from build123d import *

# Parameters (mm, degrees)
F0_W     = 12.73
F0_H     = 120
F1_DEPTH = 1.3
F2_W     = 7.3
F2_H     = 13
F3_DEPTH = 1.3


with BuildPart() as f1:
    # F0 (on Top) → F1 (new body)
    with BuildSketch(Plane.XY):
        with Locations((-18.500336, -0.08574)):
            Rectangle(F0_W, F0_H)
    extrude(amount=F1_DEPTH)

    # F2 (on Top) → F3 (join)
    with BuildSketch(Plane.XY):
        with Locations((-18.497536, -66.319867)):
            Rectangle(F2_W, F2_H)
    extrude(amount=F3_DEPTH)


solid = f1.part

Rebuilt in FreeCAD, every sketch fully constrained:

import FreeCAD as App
import Part
import Sketcher

doc = App.newDocument("Part")
body = doc.addObject("PartDesign::Body", "Body")

# Sketch on XY plane
sketch1 = doc.addObject("Sketcher::SketchObject", "Sketch")
body.addObject(sketch1)
sketch1.AttachmentSupport = (doc.XY_Plane, [""])
sketch1.MapMode = "FlatFace"
sketch1.addGeometry([
    Part.LineSegment(App.Vector(-25, 60, 0), App.Vector(-25, -60, 0)),
    Part.LineSegment(App.Vector(-25, -60, 0), App.Vector(-12, -60, 0)),
    Part.LineSegment(App.Vector(-12, -60, 0), App.Vector(-12, 60, 0)),
    Part.LineSegment(App.Vector(-12, 60, 0), App.Vector(-25, 60, 0)),
], False)
sketch1.addConstraint([
    Sketcher.Constraint("Coincident", 0, 2, 1, 1),
    Sketcher.Constraint("Coincident", 1, 2, 2, 1),
    Sketcher.Constraint("Coincident", 2, 2, 3, 1),
    Sketcher.Constraint("Coincident", 3, 2, 0, 1),
    Sketcher.Constraint("Vertical", 0),
    Sketcher.Constraint("Horizontal", 1),
    Sketcher.Constraint("Vertical", 2),
    Sketcher.Constraint("Horizontal", 3),
    Sketcher.Constraint("DistanceY", 0, 2, 0, 1, 120.0),
    Sketcher.Constraint("DistanceX", 1, 1, 1, 2, 12.73),
    Sketcher.Constraint("DistanceY", 0, 2, -1, 1, 60.08574),
    Sketcher.Constraint("DistanceX", 0, 2, -1, 1, 24.865336),
])
pad1 = doc.addObject("PartDesign::Pad", "Pad")
body.addObject(pad1)
pad1.Profile = sketch1
pad1.Length = 1.3

# Sketch on XY plane
sketch2 = doc.addObject("Sketcher::SketchObject", "Sketch001")
body.addObject(sketch2)
sketch2.AttachmentSupport = (doc.XY_Plane, [""])
sketch2.MapMode = "FlatFace"
sketch2.addGeometry([
    Part.LineSegment(App.Vector(-22, -60, 0), App.Vector(-22, -73, 0)),
    Part.LineSegment(App.Vector(-22, -73, 0), App.Vector(-15, -73, 0)),
    Part.LineSegment(App.Vector(-15, -73, 0), App.Vector(-15, -60, 0)),
    Part.LineSegment(App.Vector(-15, -60, 0), App.Vector(-22, -60, 0)),
], False)
sketch2.addConstraint([
    Sketcher.Constraint("Coincident", 0, 2, 1, 1),
    Sketcher.Constraint("Coincident", 1, 2, 2, 1),
    Sketcher.Constraint("Coincident", 2, 2, 3, 1),
    Sketcher.Constraint("Coincident", 3, 2, 0, 1),
    Sketcher.Constraint("Vertical", 0),
    Sketcher.Constraint("Horizontal", 1),
    Sketcher.Constraint("Vertical", 2),
    Sketcher.Constraint("Horizontal", 3),
    Sketcher.Constraint("DistanceY", 0, 2, 0, 1, 13.0),
    Sketcher.Constraint("DistanceX", 1, 1, 1, 2, 7.3),
    Sketcher.Constraint("DistanceX", 0, 2, -1, 1, 22.147536),
    Sketcher.Constraint("DistanceY", 0, 2, -1, 1, 72.819867),
])
pad2 = doc.addObject("PartDesign::Pad", "Pad001")
body.addObject(pad2)
pad2.Profile = sketch2
pad2.Length = 1.3

doc.recompute()
